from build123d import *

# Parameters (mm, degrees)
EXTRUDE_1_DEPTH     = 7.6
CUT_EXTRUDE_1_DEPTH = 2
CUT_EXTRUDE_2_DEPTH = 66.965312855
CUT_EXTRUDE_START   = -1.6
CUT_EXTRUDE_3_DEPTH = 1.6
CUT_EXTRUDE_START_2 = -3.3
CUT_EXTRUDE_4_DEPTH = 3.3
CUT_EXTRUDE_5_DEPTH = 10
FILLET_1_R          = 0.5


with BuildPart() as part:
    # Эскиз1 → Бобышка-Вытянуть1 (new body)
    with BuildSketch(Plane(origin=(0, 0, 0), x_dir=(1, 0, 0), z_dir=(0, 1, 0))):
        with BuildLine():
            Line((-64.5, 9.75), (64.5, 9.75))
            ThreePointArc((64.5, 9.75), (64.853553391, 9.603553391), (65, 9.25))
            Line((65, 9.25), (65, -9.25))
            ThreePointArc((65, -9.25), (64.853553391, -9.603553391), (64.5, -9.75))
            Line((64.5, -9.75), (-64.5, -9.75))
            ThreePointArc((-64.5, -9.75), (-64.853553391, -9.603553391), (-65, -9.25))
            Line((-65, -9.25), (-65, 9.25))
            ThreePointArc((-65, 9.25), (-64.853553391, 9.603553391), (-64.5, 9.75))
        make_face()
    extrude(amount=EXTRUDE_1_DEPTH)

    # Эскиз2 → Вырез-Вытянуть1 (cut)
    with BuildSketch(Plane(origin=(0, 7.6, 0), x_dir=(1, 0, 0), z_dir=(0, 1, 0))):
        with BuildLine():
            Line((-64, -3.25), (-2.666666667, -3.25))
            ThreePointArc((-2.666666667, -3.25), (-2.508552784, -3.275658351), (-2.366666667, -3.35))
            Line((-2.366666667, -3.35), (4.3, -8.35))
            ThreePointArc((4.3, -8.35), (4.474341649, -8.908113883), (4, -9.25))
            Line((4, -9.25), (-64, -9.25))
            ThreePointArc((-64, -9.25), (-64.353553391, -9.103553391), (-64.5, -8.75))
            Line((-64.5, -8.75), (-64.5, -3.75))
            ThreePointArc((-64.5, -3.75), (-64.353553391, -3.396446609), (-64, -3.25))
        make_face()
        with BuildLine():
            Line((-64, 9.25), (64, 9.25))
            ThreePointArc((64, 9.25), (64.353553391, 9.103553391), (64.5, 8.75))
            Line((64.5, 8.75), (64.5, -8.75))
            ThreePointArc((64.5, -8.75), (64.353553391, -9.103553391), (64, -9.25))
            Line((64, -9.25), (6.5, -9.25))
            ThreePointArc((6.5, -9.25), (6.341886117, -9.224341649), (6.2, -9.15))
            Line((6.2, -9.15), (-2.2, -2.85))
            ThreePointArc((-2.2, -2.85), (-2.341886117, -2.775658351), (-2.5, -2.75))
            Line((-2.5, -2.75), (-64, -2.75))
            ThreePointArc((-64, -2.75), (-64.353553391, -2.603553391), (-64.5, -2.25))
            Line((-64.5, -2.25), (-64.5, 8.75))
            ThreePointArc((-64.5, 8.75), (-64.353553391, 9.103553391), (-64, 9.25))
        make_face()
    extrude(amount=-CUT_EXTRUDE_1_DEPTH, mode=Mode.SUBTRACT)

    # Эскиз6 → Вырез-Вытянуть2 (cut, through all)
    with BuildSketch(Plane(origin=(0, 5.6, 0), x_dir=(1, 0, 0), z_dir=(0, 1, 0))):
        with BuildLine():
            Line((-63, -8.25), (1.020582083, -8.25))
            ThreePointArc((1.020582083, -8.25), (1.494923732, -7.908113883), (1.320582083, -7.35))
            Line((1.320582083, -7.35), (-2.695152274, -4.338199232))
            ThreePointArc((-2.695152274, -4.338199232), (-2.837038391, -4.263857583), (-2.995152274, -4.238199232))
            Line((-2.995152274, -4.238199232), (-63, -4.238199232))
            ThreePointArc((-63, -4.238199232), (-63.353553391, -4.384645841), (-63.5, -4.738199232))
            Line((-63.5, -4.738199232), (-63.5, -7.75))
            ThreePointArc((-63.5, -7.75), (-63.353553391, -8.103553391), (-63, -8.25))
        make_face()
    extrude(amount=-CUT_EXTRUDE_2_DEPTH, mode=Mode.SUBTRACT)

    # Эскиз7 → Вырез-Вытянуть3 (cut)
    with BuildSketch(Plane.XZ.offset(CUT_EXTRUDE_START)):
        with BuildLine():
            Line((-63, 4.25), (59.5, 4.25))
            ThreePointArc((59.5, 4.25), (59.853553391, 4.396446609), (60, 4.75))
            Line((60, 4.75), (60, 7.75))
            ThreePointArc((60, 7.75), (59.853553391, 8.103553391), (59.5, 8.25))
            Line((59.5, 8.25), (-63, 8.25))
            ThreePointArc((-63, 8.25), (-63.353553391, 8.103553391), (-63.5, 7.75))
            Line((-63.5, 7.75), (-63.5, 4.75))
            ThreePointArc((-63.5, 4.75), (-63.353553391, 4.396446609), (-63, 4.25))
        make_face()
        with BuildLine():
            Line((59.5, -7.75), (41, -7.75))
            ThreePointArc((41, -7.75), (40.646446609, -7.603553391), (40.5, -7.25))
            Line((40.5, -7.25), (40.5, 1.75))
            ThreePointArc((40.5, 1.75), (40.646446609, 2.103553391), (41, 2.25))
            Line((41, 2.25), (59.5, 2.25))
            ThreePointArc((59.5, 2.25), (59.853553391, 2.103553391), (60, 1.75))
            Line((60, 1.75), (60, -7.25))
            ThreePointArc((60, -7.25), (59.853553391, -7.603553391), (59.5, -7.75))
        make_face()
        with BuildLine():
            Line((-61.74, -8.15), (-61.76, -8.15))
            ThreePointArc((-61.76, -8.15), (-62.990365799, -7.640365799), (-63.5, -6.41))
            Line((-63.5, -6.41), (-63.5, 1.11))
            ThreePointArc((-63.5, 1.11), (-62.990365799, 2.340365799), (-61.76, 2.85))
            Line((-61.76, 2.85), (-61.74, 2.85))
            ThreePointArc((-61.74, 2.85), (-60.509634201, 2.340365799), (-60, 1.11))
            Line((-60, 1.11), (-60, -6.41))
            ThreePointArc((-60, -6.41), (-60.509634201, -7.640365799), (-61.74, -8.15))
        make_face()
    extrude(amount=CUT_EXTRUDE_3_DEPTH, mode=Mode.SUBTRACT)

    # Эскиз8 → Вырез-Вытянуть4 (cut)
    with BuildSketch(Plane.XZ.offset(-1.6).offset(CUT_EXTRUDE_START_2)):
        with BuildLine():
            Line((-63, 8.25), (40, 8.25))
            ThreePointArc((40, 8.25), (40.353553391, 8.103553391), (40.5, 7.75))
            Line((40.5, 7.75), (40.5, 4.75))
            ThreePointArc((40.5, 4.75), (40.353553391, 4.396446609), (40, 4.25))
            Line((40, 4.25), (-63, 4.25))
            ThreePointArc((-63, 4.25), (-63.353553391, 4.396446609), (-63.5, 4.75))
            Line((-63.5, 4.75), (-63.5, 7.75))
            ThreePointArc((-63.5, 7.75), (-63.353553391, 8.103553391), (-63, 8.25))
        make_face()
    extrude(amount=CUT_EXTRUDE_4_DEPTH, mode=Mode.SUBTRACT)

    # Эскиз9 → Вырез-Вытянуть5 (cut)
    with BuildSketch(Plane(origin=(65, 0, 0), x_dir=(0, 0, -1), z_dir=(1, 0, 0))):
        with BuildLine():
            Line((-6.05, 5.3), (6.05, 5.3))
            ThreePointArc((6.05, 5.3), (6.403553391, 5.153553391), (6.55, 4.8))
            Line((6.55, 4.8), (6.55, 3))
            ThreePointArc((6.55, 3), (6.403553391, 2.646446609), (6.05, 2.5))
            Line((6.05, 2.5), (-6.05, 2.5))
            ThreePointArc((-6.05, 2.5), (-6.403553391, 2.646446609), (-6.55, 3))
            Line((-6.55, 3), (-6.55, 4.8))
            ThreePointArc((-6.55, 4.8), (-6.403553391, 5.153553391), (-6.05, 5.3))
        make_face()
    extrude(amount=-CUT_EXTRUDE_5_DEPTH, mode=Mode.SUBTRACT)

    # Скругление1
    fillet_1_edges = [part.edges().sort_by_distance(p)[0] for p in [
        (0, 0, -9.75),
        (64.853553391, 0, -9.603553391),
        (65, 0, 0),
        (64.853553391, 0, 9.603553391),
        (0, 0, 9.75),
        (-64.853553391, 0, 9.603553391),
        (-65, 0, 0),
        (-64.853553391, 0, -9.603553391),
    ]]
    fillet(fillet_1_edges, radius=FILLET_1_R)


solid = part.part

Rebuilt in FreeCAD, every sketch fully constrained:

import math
import FreeCAD as App
import Part
import Sketcher


def edges_at(feature, points):
    """Names of the edges that pass closest to the given points."""
    edges = feature.Shape.Edges
    near = lambda p: min(range(len(edges)), key=lambda i: edges[i].distToShape(Part.Vertex(*p))[0])
    return sorted({f"Edge{near(p) + 1}" for p in points})

doc = App.newDocument("Part")
params = doc.addObject("Spreadsheet::Sheet", "Params")
for row, (alias, value) in enumerate([
    ("sketch1_radius", "0.5 mm"),
    ("sketch1_width", "129 mm"),
    ("sketch1_height", "18.5 mm"),
    ("pad1_length", "7.6 mm"),
    ("sketch2_radius", "0.5 mm"),
    ("sketch2_width", "68 mm"),
    ("sketch2_width2", "128 mm"),
    ("sketch2_height", "5 mm"),
    ("sketch2_height2", "11 mm"),
    ("pocket1_length", "2 mm"),
    ("sketch3_radius", "0.5 mm"),
    ("sketch3_width", "0.3 mm"),
    ("sketch4_radius", "0.5 mm"),
    ("sketch4_height", "3 mm"),
    ("sketch4_height2", "9 mm"),
    ("sketch4_radius2", "1.74 mm"),
    ("sketch4_width", "122.5 mm"),
    ("pocket3_length", "1.6 mm"),
    ("sketch5_radius", "0.5 mm"),
    ("sketch5_width", "103 mm"),
    ("sketch5_height", "3 mm"),
    ("pocket4_length", "3.3 mm"),
    ("sketch6_radius", "0.5 mm"),
    ("sketch6_width", "1.8 mm"),
    ("sketch6_height", "12.1 mm"),
    ("pocket5_length", "10 mm"),
    ("fillet_radius", "0.5 mm"),
], start=1):
    params.set(f"A{row}", alias)
    params.set(f"B{row}", "=" + value)
    params.setAlias(f"B{row}", alias)

body = doc.addObject("PartDesign::Body", "Body")

# Sketch on XZ plane
sketch1 = body.newObject("Sketcher::SketchObject", "Sketch")
sketch1.AttachmentSupport = (doc.getObject("XZ_Plane"), [""])
sketch1.MapMode = "FlatFace"
sketch1.addGeometry(Part.LineSegment(App.Vector(64.5, -9.75, 0), App.Vector(-64.5, -9.75, 0)), False)
sketch1.addGeometry(Part.ArcOfCircle(Part.Circle(App.Vector(-64.5, -9.25, 0), App.Vector(0, 0, 1), 0.5), math.radians(180), math.radians(270)), False)
sketch1.addGeometry(Part.LineSegment(App.Vector(-65, -9.25, 0), App.Vector(-65, 9.25, 0)), False)
sketch1.addGeometry(Part.ArcOfCircle(Part.Circle(App.Vector(-64.5, 9.25, 0), App.Vector(0, 0, 1), 0.5), math.radians(90), math.radians(180)), False)
sketch1.addGeometry(Part.LineSegment(App.Vector(-64.5, 9.75, 0), App.Vector(64.5, 9.75, 0)), False)
sketch1.addGeometry(Part.ArcOfCircle(Part.Circle(App.Vector(64.5, 9.25, 0), App.Vector(0, 0, 1), 0.5), math.radians(0), math.radians(90)), False)
sketch1.addGeometry(Part.LineSegment(App.Vector(65, 9.25, 0), App.Vector(65, -9.25, 0)), False)
sketch1.addGeometry(Part.ArcOfCircle(Part.Circle(App.Vector(64.5, -9.25, 0), App.Vector(0, 0, 1), 0.5), math.radians(-90), math.radians(0)), False)
sketch1.addConstraint(Sketcher.Constraint("Tangent", 0, 2, 1, 2))
sketch1.addConstraint(Sketcher.Constraint("Tangent", 1, 1, 2, 1))
sketch1.addConstraint(Sketcher.Constraint("Tangent", 2, 2, 3, 2))
sketch1.addConstraint(Sketcher.Constraint("Tangent", 3, 1, 4, 1))
sketch1.addConstraint(Sketcher.Constraint("Tangent", 4, 2, 5, 2))
sketch1.addConstraint(Sketcher.Constraint("Tangent", 5, 1, 6, 1))
sketch1.addConstraint(Sketcher.Constraint("Tangent", 6, 2, 7, 2))
sketch1.addConstraint(Sketcher.Constraint("Tangent", 7, 1, 0, 1))
sketch1.addConstraint(Sketcher.Constraint("Horizontal", 0))
sketch1.addConstraint(Sketcher.Constraint("Vertical", 2))
sketch1.addConstraint(Sketcher.Constraint("Horizontal", 4))
sketch1.addConstraint(Sketcher.Constraint("Vertical", 6))
sketch1.addConstraint(Sketcher.Constraint("Equal", 1, 3))
sketch1.addConstraint(Sketcher.Constraint("Equal", 3, 5))
sketch1.addConstraint(Sketcher.Constraint("Equal", 5, 7))
sketch1.addConstraint(Sketcher.Constraint("Symmetric", 1, 3, 5, 3, -1, 1))
sketch1.addConstraint(Sketcher.Constraint("Radius", 1, 0.5))
sketch1.addConstraint(Sketcher.Constraint("DistanceX", 0, 2, 0, 1, 129.0))
sketch1.addConstraint(Sketcher.Constraint("DistanceY", 2, 1, 2, 2, 18.5))
sketch1.setExpression("Constraints[16]", "Params.sketch1_radius")
sketch1.setExpression("Constraints[17]", "Params.sketch1_width")
sketch1.setExpression("Constraints[18]", "Params.sketch1_height")
pad1 = body.newObject("PartDesign::Pad", "Pad")
pad1.Profile = sketch1
pad1.setExpression("Length", "Params.pad1_length")
pad1.Reversed = True

# Sketch on XZ plane
sketch2 = body.newObject("Sketcher::SketchObject", "Sketch001")
sketch2.AttachmentSupport = (doc.getObject("XZ_Plane"), [""])
sketch2.MapMode = "FlatFace"
sketch2.AttachmentOffset = App.Placement(App.Vector(0, 0, -7.6), App.Rotation())
sketch2.addGeometry(Part.LineSegment(App.Vector(-2.67, 3.25, 0), App.Vector(-64, 3.25, 0)), False)
sketch2.addGeometry(Part.ArcOfCircle(Part.Circle(App.Vector(-64, 3.75, 0), App.Vector(0, 0, 1), 0.5), math.radians(180), math.radians(270)), False)
sketch2.addGeometry(Part.LineSegment(App.Vector(-64.5, 3.75, 0), App.Vector(-64.5, 8.75, 0)), False)
sketch2.addGeometry(Part.ArcOfCircle(Part.Circle(App.Vector(-64, 8.75, 0), App.Vector(0, 0, 1), 0.5), math.radians(90), math.radians(180)), False)
sketch2.addGeometry(Part.LineSegment(App.Vector(-64, 9.25, 0), App.Vector(4, 9.25, 0)), False)
sketch2.addGeometry(Part.ArcOfCircle(Part.Circle(App.Vector(4, 8.75, 0), App.Vector(0, 0, 1), 0.5), math.radians(-53), math.radians(90)), False)
sketch2.addGeometry(Part.LineSegment(App.Vector(4.3, 8.35, 0), App.Vector(-2.37, 3.35, 0)), False)
sketch2.addGeometry(Part.ArcOfCircle(Part.Circle(App.Vector(-2.67, 3.75, 0), App.Vector(0, 0, 1), 0.5), math.radians(-90), math.radians(-53)), False)
sketch2.addGeometry(Part.LineSegment(App.Vector(64, -9.25, 0), App.Vector(-64, -9.25, 0)), False)
sketch2.addGeometry(Part.ArcOfCircle(Part.Circle(App.Vector(-64, -8.75, 0), App.Vector(0, 0, 1), 0.5), math.radians(180), math.radians(270)), False)
sketch2.addGeometry(Part.LineSegment(App.Vector(-64.5, -8.75, 0), App.Vector(-64.5, 2.25, 0)), False)
sketch2.addGeometry(Part.ArcOfCircle(Part.Circle(App.Vector(-64, 2.25, 0), App.Vector(0, 0, 1), 0.5), math.radians(90), math.radians(180)), False)
sketch2.addGeometry(Part.LineSegment(App.Vector(-64, 2.75, 0), App.Vector(-2.5, 2.75, 0)), False)
sketch2.addGeometry(Part.ArcOfCircle(Part.Circle(App.Vector(-2.5, 3.25, 0), App.Vector(0, 0, 1), 0.5), math.radians(-90), math.radians(-53)), False)
sketch2.addGeometry(Part.LineSegment(App.Vector(-2.2, 2.85, 0), App.Vector(6.2, 9.15, 0)), False)
sketch2.addGeometry(Part.ArcOfCircle(Part.Circle(App.Vector(6.5, 8.75, 0), App.Vector(0, 0, 1), 0.5), math.radians(90), math.radians(127)), False)
sketch2.addGeometry(Part.LineSegment(App.Vector(6.5, 9.25, 0), App.Vector(64, 9.25, 0)), False)
sketch2.addGeometry(Part.ArcOfCircle(Part.Circle(App.Vector(64, 8.75, 0), App.Vector(0, 0, 1), 0.5), math.radians(0), math.radians(90)), False)
sketch2.addGeometry(Part.LineSegment(App.Vector(64.5, 8.75, 0), App.Vector(64.5, -8.75, 0)), False)
sketch2.addGeometry(Part.ArcOfCircle(Part.Circle(App.Vector(64, -8.75, 0), App.Vector(0, 0, 1), 0.5), math.radians(-90), math.radians(0)), False)
sketch2.addConstraint(Sketcher.Constraint("Tangent", 0, 2, 1, 2))
sketch2.addConstraint(Sketcher.Constraint("Tangent", 1, 1, 2, 1))
sketch2.addConstraint(Sketcher.Constraint("Tangent", 2, 2, 3, 2))
sketch2.addConstraint(Sketcher.Constraint("Tangent", 3, 1, 4, 1))
sketch2.addConstraint(Sketcher.Constraint("Tangent", 4, 2, 5, 2))
sketch2.addConstraint(Sketcher.Constraint("Tangent", 5, 1, 6, 1))
sketch2.addConstraint(Sketcher.Constraint("Tangent", 6, 2, 7, 2))
sketch2.addConstraint(Sketcher.Constraint("Tangent", 7, 1, 0, 1))
sketch2.addConstraint(Sketcher.Constraint("Tangent", 8, 2, 9, 2))
sketch2.addConstraint(Sketcher.Constraint("Tangent", 9, 1, 10, 1))
sketch2.addConstraint(Sketcher.Constraint("Tangent", 10, 2, 11, 2))
sketch2.addConstraint(Sketcher.Constraint("Tangent", 11, 1, 12, 1))
sketch2.addConstraint(Sketcher.Constraint("Tangent", 12, 2, 13, 1))
sketch2.addConstraint(Sketcher.Constraint("Tangent", 13, 2, 14, 1))
sketch2.addConstraint(Sketcher.Constraint("Tangent", 14, 2, 15, 2))
sketch2.addConstraint(Sketcher.Constraint("Tangent", 15, 1, 16, 1))
sketch2.addConstraint(Sketcher.Constraint("Tangent", 16, 2, 17, 2))
sketch2.addConstraint(Sketcher.Constraint("Tangent", 17, 1, 18, 1))
sketch2.addConstraint(Sketcher.Constraint("Tangent", 18, 2, 19, 2))
sketch2.addConstraint(Sketcher.Constraint("Tangent", 19, 1, 8, 1))
sketch2.addConstraint(Sketcher.Constraint("Horizontal", 0))
sketch2.addConstraint(Sketcher.Constraint("Vertical", 2))
sketch2.addConstraint(Sketcher.Constraint("Horizontal", 4))
sketch2.addConstraint(Sketcher.Constraint("Horizontal", 8))
sketch2.addConstraint(Sketcher.Constraint("Vertical", 10))
sketch2.addConstraint(Sketcher.Constraint("Horizontal", 12))
sketch2.addConstraint(Sketcher.Constraint("Horizontal", 16))
sketch2.addConstraint(Sketcher.Constraint("Vertical", 18))
sketch2.addConstraint(Sketcher.Constraint("Equal", 1, 3))
sketch2.addConstraint(Sketcher.Constraint("Equal", 3, 5))
sketch2.addConstraint(Sketcher.Constraint("Equal", 5, 7))
sketch2.addConstraint(Sketcher.Constraint("Equal", 7, 9))
sketch2.addConstraint(Sketcher.Constraint("Equal", 9, 11))
sketch2.addConstraint(Sketcher.Constraint("Equal", 11, 13))
sketch2.addConstraint(Sketcher.Constraint("Equal", 13, 15))
sketch2.addConstraint(Sketcher.Constraint("Equal", 15, 17))
sketch2.addConstraint(Sketcher.Constraint("Equal", 17, 19))
sketch2.addConstraint(Sketcher.Constraint("Symmetric", 9, 3, 17, 3, -1, 1))
sketch2.addConstraint(Sketcher.Constraint("Symmetric", 3, 3, 19, 3, -1, 1))
sketch2.addConstraint(Sketcher.Constraint("Parallel", 6, 14))
sketch2.addConstraint(Sketcher.Constraint("Horizontal", 13, 3, 0, 2))
sketch2.addConstraint(Sketcher.Constraint("Radius", 1, 0.5))
sketch2.addConstraint(Sketcher.Constraint("DistanceX", 4, 1, 4, 2, 68.0))
sketch2.addConstraint(Sketcher.Constraint("DistanceX", 8, 2, 8, 1, 128.0))
sketch2.addConstraint(Sketcher.Constraint("DistanceY", 2, 1, 2, 2, 5.0))
sketch2.addConstraint(Sketcher.Constraint("DistanceY", 10, 1, 10, 2, 11.0))
sketch2.addConstraint(Sketcher.Constraint("DistanceX", 12, 1, 12, 2, 61.5))
sketch2.addConstraint(Sketcher.Constraint("DistanceX", 16, 1, 16, 2, 57.5))
sketch2.setExpression("Constraints[41]", "Params.sketch2_radius")
sketch2.setExpression("Constraints[42]", "Params.sketch2_width")
sketch2.setExpression("Constraints[43]", "Params.sketch2_width2")
sketch2.setExpression("Constraints[44]", "Params.sketch2_height")
sketch2.setExpression("Constraints[45]", "Params.sketch2_height2")
pocket1 = body.newObject("PartDesign::Pocket", "Pocket")
pocket1.Profile = sketch2
pocket1.setExpression("Length", "Params.pocket1_length")
pocket1.Reversed = True

# Sketch on XZ plane
sketch3 = body.newObject("Sketcher::SketchObject", "Sketch002")
sketch3.AttachmentSupport = (doc.getObject("XZ_Plane"), [""])
sketch3.MapMode = "FlatFace"
sketch3.AttachmentOffset = App.Placement(App.Vector(0, 0, -5.6), App.Rotation())
sketch3.addGeometry(Part.LineSegment(App.Vector(-63, 8.25, 0), App.Vector(1.02, 8.25, 0)), False)
sketch3.addGeometry(Part.ArcOfCircle(Part.Circle(App.Vector(1.02, 7.75, 0), App.Vector(0, 0, 1), 0.5), math.radians(-53), math.radians(90)), False)
sketch3.addGeometry(Part.LineSegment(App.Vector(1.32, 7.35, 0), App.Vector(-2.7, 4.34, 0)), False)
sketch3.addGeometry(Part.ArcOfCircle(Part.Circle(App.Vector(-3, 4.74, 0), App.Vector(0, 0, 1), 0.5), math.radians(-90), math.radians(-53)), False)
sketch3.addGeometry(Part.LineSegment(App.Vector(-3, 4.24, 0), App.Vector(-63, 4.24, 0)), False)
sketch3.addGeometry(Part.ArcOfCircle(Part.Circle(App.Vector(-63, 4.74, 0), App.Vector(0, 0, 1), 0.5), math.radians(180), math.radians(270)), False)
sketch3.addGeometry(Part.LineSegment(App.Vector(-63.5, 4.74, 0), App.Vector(-63.5, 7.75, 0)), False)
sketch3.addGeometry(Part.ArcOfCircle(Part.Circle(App.Vector(-63, 7.75, 0), App.Vector(0, 0, 1), 0.5), math.radians(90), math.radians(180)), False)
sketch3.addConstraint(Sketcher.Constraint("Tangent", 0, 2, 1, 2))
sketch3.addConstraint(Sketcher.Constraint("Tangent", 1, 1, 2, 1))
sketch3.addConstraint(Sketcher.Constraint("Tangent", 2, 2, 3, 2))
sketch3.addConstraint(Sketcher.Constraint("Tangent", 3, 1, 4, 1))
sketch3.addConstraint(Sketcher.Constraint("Tangent", 4, 2, 5, 2))
sketch3.addConstraint(Sketcher.Constraint("Tangent", 5, 1, 6, 1))
sketch3.addConstraint(Sketcher.Constraint("Tangent", 6, 2, 7, 2))
sketch3.addConstraint(Sketcher.Constraint("Tangent", 7, 1, 0, 1))
sketch3.addConstraint(Sketcher.Constraint("Horizontal", 0))
sketch3.addConstraint(Sketcher.Constraint("Horizontal", 4))
sketch3.addConstraint(Sketcher.Constraint("Vertical", 6))
sketch3.addConstraint(Sketcher.Constraint("Equal", 1, 3))
sketch3.addConstraint(Sketcher.Constraint("Equal", 3, 5))
sketch3.addConstraint(Sketcher.Constraint("Equal", 5, 7))
sketch3.addConstraint(Sketcher.Constraint("Radius", 1, 0.5))
sketch3.addConstraint(Sketcher.Constraint("DistanceX", 5, 3, -1, 1, 63.0))
sketch3.addConstraint(Sketcher.Constraint("DistanceX", 1, 3, 1, 1, 0.3))
sketch3.addConstraint(Sketcher.Constraint("DistanceY", -1, 1, 1, 3, 7.75))
sketch3.addConstraint(Sketcher.Constraint("DistanceY", 6, 1, 6, 2, 3.011801))
sketch3.addConstraint(Sketcher.Constraint("DistanceX", 0, 1, 0, 2, 64.020582))
sketch3.setExpression("Constraints[14]", "Params.sketch3_radius")
sketch3.setExpression("Constraints[16]", "Params.sketch3_width")
pocket2 = body.newObject("PartDesign::Pocket", "Pocket001")
pocket2.Profile = sketch3
pocket2.Type = "ThroughAll"
pocket2.Reversed = True

# Sketch on XZ plane
sketch4 = body.newObject("Sketcher::SketchObject", "Sketch003")
sketch4.AttachmentSupport = (doc.getObject("XZ_Plane"), [""])
sketch4.MapMode = "FlatFace"
sketch4.AttachmentOffset = App.Placement(App.Vector(0, 0, -1.6), App.Rotation())
sketch4.addGeometry(Part.LineSegment(App.Vector(-63, 4.25, 0), App.Vector(59.5, 4.25, 0)), False)
sketch4.addGeometry(Part.ArcOfCircle(Part.Circle(App.Vector(59.5, 4.75, 0), App.Vector(0, 0, 1), 0.5), math.radians(-90), math.radians(0)), False)
sketch4.addGeometry(Part.LineSegment(App.Vector(60, 4.75, 0), App.Vector(60, 7.75, 0)), False)
sketch4.addGeometry(Part.ArcOfCircle(Part.Circle(App.Vector(59.5, 7.75, 0), App.Vector(0, 0, 1), 0.5), math.radians(0), math.radians(90)), False)
sketch4.addGeometry(Part.LineSegment(App.Vector(59.5, 8.25, 0), App.Vector(-63, 8.25, 0)), False)
sketch4.addGeometry(Part.ArcOfCircle(Part.Circle(App.Vector(-63, 7.75, 0), App.Vector(0, 0, 1), 0.5), math.radians(90), math.radians(180)), False)
sketch4.addGeometry(Part.LineSegment(App.Vector(-63.5, 7.75, 0), App.Vector(-63.5, 4.75, 0)), False)
sketch4.addGeometry(Part.ArcOfCircle(Part.Circle(App.Vector(-63, 4.75, 0), App.Vector(0, 0, 1), 0.5), math.radians(180), math.radians(270)), False)
sketch4.addGeometry(Part.LineSegment(App.Vector(41, -7.75, 0), App.Vector(59.5, -7.75, 0)), False)
sketch4.addGeometry(Part.ArcOfCircle(Part.Circle(App.Vector(59.5, -7.25, 0), App.Vector(0, 0, 1), 0.5), math.radians(-90), math.radians(0)), False)
sketch4.addGeometry(Part.LineSegment(App.Vector(60, -7.25, 0), App.Vector(60, 1.75, 0)), False)
sketch4.addGeometry(Part.ArcOfCircle(Part.Circle(App.Vector(59.5, 1.75, 0), App.Vector(0, 0, 1), 0.5), math.radians(0), math.radians(90)), False)
sketch4.addGeometry(Part.LineSegment(App.Vector(59.5, 2.25, 0), App.Vector(41, 2.25, 0)), False)
sketch4.addGeometry(Part.ArcOfCircle(Part.Circle(App.Vector(41, 1.75, 0), App.Vector(0, 0, 1), 0.5), math.radians(90), math.radians(180)), False)
sketch4.addGeometry(Part.LineSegment(App.Vector(40.5, 1.75, 0), App.Vector(40.5, -7.25, 0)), False)
sketch4.addGeometry(Part.ArcOfCircle(Part.Circle(App.Vector(41, -7.25, 0), App.Vector(0, 0, 1), 0.5), math.radians(180), math.radians(270)), False)
sketch4.addGeometry(Part.LineSegment(App.Vector(-61.76, -8.15, 0), App.Vector(-61.74, -8.15, 0)), False)
sketch4.addGeometry(Part.ArcOfCircle(Part.Circle(App.Vector(-61.74, -6.41, 0), App.Vector(0, 0, 1), 1.74), math.radians(-90), math.radians(0)), False)
sketch4.addGeometry(Part.LineSegment(App.Vector(-60, -6.41, 0), App.Vector(-60, 1.11, 0)), False)
sketch4.addGeometry(Part.ArcOfCircle(Part.Circle(App.Vector(-61.74, 1.11, 0), App.Vector(0, 0, 1), 1.74), math.radians(0), math.radians(90)), False)
sketch4.addGeometry(Part.LineSegment(App.Vector(-61.74, 2.85, 0), App.Vector(-61.76, 2.85, 0)), False)
sketch4.addGeometry(Part.ArcOfCircle(Part.Circle(App.Vector(-61.76, 1.11, 0), App.Vector(0, 0, 1), 1.74), math.radians(90), math.radians(180)), False)
sketch4.addGeometry(Part.LineSegment(App.Vector(-63.5, 1.11, 0), App.Vector(-63.5, -6.41, 0)), False)
sketch4.addGeometry(Part.ArcOfCircle(Part.Circle(App.Vector(-61.76, -6.41, 0), App.Vector(0, 0, 1), 1.74), math.radians(-180), math.radians(-90)), False)
sketch4.addConstraint(Sketcher.Constraint("Tangent", 0, 2, 1, 1))
sketch4.addConstraint(Sketcher.Constraint("Tangent", 1, 2, 2, 1))
sketch4.addConstraint(Sketcher.Constraint("Tangent", 2, 2, 3, 1))
sketch4.addConstraint(Sketcher.Constraint("Tangent", 3, 2, 4, 1))
sketch4.addConstraint(Sketcher.Constraint("Tangent", 4, 2, 5, 1))
sketch4.addConstraint(Sketcher.Constraint("Tangent", 5, 2, 6, 1))
sketch4.addConstraint(Sketcher.Constraint("Tangent", 6, 2, 7, 1))
sketch4.addConstraint(Sketcher.Constraint("Tangent", 7, 2, 0, 1))
sketch4.addConstraint(Sketcher.Constraint("Tangent", 8, 2, 9, 1))
sketch4.addConstraint(Sketcher.Constraint("Tangent", 9, 2, 10, 1))
sketch4.addConstraint(Sketcher.Constraint("Tangent", 10, 2, 11, 1))
sketch4.addConstraint(Sketcher.Constraint("Tangent", 11, 2, 12, 1))
sketch4.addConstraint(Sketcher.Constraint("Tangent", 12, 2, 13, 1))
sketch4.addConstraint(Sketcher.Constraint("Tangent", 13, 2, 14, 1))
sketch4.addConstraint(Sketcher.Constraint("Tangent", 14, 2, 15, 1))
sketch4.addConstraint(Sketcher.Constraint("Tangent", 15, 2, 8, 1))
sketch4.addConstraint(Sketcher.Constraint("Tangent", 16, 2, 17, 1))
sketch4.addConstraint(Sketcher.Constraint("Tangent", 17, 2, 18, 1))
sketch4.addConstraint(Sketcher.Constraint("Tangent", 18, 2, 19, 1))
sketch4.addConstraint(Sketcher.Constraint("Tangent", 19, 2, 20, 1))
sketch4.addConstraint(Sketcher.Constraint("Tangent", 20, 2, 21, 1))
sketch4.addConstraint(Sketcher.Constraint("Tangent", 21, 2, 22, 1))
sketch4.addConstraint(Sketcher.Constraint("Tangent", 22, 2, 23, 1))
sketch4.addConstraint(Sketcher.Constraint("Tangent", 23, 2, 16, 1))
sketch4.addConstraint(Sketcher.Constraint("Horizontal", 0))
sketch4.addConstraint(Sketcher.Constraint("Vertical", 2))
sketch4.addConstraint(Sketcher.Constraint("Horizontal", 4))
sketch4.addConstraint(Sketcher.Constraint("Vertical", 6))
sketch4.addConstraint(Sketcher.Constraint("Horizontal", 8))
sketch4.addConstraint(Sketcher.Constraint("Vertical", 10))
sketch4.addConstraint(Sketcher.Constraint("Horizontal", 12))
sketch4.addConstraint(Sketcher.Constraint("Vertical", 14))
sketch4.addConstraint(Sketcher.Constraint("Horizontal", 16))
sketch4.addConstraint(Sketcher.Constraint("Vertical", 18))
sketch4.addConstraint(Sketcher.Constraint("Horizontal", 20))
sketch4.addConstraint(Sketcher.Constraint("Vertical", 22))
sketch4.addConstraint(Sketcher.Constraint("Equal", 1, 3))
sketch4.addConstraint(Sketcher.Constraint("Equal", 3, 5))
sketch4.addConstraint(Sketcher.Constraint("Equal", 5, 7))
sketch4.addConstraint(Sketcher.Constraint("Equal", 7, 9))
sketch4.addConstraint(Sketcher.Constraint("Equal", 9, 11))
sketch4.addConstraint(Sketcher.Constraint("Equal", 11, 13))
sketch4.addConstraint(Sketcher.Constraint("Equal", 13, 15))
sketch4.addConstraint(Sketcher.Constraint("Equal", 17, 19))
sketch4.addConstraint(Sketcher.Constraint("Equal", 19, 21))
sketch4.addConstraint(Sketcher.Constraint("Equal", 21, 23))
sketch4.addConstraint(Sketcher.Constraint("Vertical", 3, 3, 9, 3))
sketch4.addConstraint(Sketcher.Constraint("Vertical", 6, 2, 21, 2))
sketch4.addConstraint(Sketcher.Constraint("Radius", 1, 0.5))
sketch4.addConstraint(Sketcher.Constraint("DistanceY", 2, 1, 2, 2, 3.0))
sketch4.addConstraint(Sketcher.Constraint("DistanceY", 10, 1, 10, 2, 9.0))
sketch4.addConstraint(Sketcher.Constraint("Radius", 17, 1.74))
sketch4.addConstraint(Sketcher.Constraint("DistanceX", 0, 1, 0, 2, 122.5))
sketch4.addConstraint(Sketcher.Constraint("DistanceX", 8, 1, 8, 2, 18.5))
sketch4.addConstraint(Sketcher.Constraint("DistanceX", 5, 3, -1, 1, 63.0))
sketch4.addConstraint(Sketcher.Constraint("DistanceX", 17, 2, -1, 1, 60.0))
sketch4.addConstraint(Sketcher.Constraint("DistanceY", 9, 3, 1, 3, 12.0))
sketch4.addConstraint(Sketcher.Constraint("DistanceY", 18, 1, 18, 2, 7.52))
sketch4.addConstraint(Sketcher.Constraint("DistanceY", 16, 2, 7, 2, 12.4))
sketch4.addConstraint(Sketcher.Constraint("DistanceY", -1, 1, 1, 3, 4.75))
sketch4.setExpression("Constraints[48]", "Params.sketch4_radius")
sketch4.setExpression("Constraints[49]", "Params.sketch4_height")
sketch4.setExpression("Constraints[50]", "Params.sketch4_height2")
sketch4.setExpression("Constraints[51]", "Params.sketch4_radius2")
sketch4.setExpression("Constraints[52]", "Params.sketch4_width")
pocket3 = body.newObject("PartDesign::Pocket", "Pocket002")
pocket3.Profile = sketch4
pocket3.setExpression("Length", "Params.pocket3_length")
pocket3.Reversed = True

# Sketch on XZ plane
sketch5 = body.newObject("Sketcher::SketchObject", "Sketch004")
sketch5.AttachmentSupport = (doc.getObject("XZ_Plane"), [""])
sketch5.MapMode = "FlatFace"
sketch5.AttachmentOffset = App.Placement(App.Vector(0, 0, -4.9), App.Rotation())
sketch5.addGeometry(Part.LineSegment(App.Vector(40, 8.25, 0), App.Vector(-63, 8.25, 0)), False)
sketch5.addGeometry(Part.ArcOfCircle(Part.Circle(App.Vector(-63, 7.75, 0), App.Vector(0, 0, 1), 0.5), math.radians(90), math.radians(180)), False)
sketch5.addGeometry(Part.LineSegment(App.Vector(-63.5, 7.75, 0), App.Vector(-63.5, 4.75, 0)), False)
sketch5.addGeometry(Part.ArcOfCircle(Part.Circle(App.Vector(-63, 4.75, 0), App.Vector(0, 0, 1), 0.5), math.radians(180), math.radians(270)), False)
sketch5.addGeometry(Part.LineSegment(App.Vector(-63, 4.25, 0), App.Vector(40, 4.25, 0)), False)
sketch5.addGeometry(Part.ArcOfCircle(Part.Circle(App.Vector(40, 4.75, 0), App.Vector(0, 0, 1), 0.5), math.radians(-90), math.radians(0)), False)
sketch5.addGeometry(Part.LineSegment(App.Vector(40.5, 4.75, 0), App.Vector(40.5, 7.75, 0)), False)
sketch5.addGeometry(Part.ArcOfCircle(Part.Circle(App.Vector(40, 7.75, 0), App.Vector(0, 0, 1), 0.5), math.radians(0), math.radians(90)), False)
sketch5.addConstraint(Sketcher.Constraint("Tangent", 0, 2, 1, 1))
sketch5.addConstraint(Sketcher.Constraint("Tangent", 1, 2, 2, 1))
sketch5.addConstraint(Sketcher.Constraint("Tangent", 2, 2, 3, 1))
sketch5.addConstraint(Sketcher.Constraint("Tangent", 3, 2, 4, 1))
sketch5.addConstraint(Sketcher.Constraint("Tangent", 4, 2, 5, 1))
sketch5.addConstraint(Sketcher.Constraint("Tangent", 5, 2, 6, 1))
sketch5.addConstraint(Sketcher.Constraint("Tangent", 6, 2, 7, 1))
sketch5.addConstraint(Sketcher.Constraint("Tangent", 7, 2, 0, 1))
sketch5.addConstraint(Sketcher.Constraint("Horizontal", 0))
sketch5.addConstraint(Sketcher.Constraint("Vertical", 2))
sketch5.addConstraint(Sketcher.Constraint("Horizontal", 4))
sketch5.addConstraint(Sketcher.Constraint("Vertical", 6))
sketch5.addConstraint(Sketcher.Constraint("Equal", 1, 3))
sketch5.addConstraint(Sketcher.Constraint("Equal", 3, 5))
sketch5.addConstraint(Sketcher.Constraint("Equal", 5, 7))
sketch5.addConstraint(Sketcher.Constraint("Radius", 1, 0.5))
sketch5.addConstraint(Sketcher.Constraint("DistanceX", 0, 2, 0, 1, 103.0))
sketch5.addConstraint(Sketcher.Constraint("DistanceY", 2, 2, 2, 1, 3.0))
sketch5.addConstraint(Sketcher.Constraint("DistanceX", 1, 3, -1, 1, 63.0))
sketch5.addConstraint(Sketcher.Constraint("DistanceY", -1, 1, 1, 3, 7.75))
sketch5.setExpression("Constraints[15]", "Params.sketch5_radius")
sketch5.setExpression("Constraints[16]", "Params.sketch5_width")
sketch5.setExpression("Constraints[17]", "Params.sketch5_height")
pocket4 = body.newObject("PartDesign::Pocket", "Pocket003")
pocket4.Profile = sketch5
pocket4.setExpression("Length", "Params.pocket4_length")
pocket4.Reversed = True

# Sketch on YZ plane
sketch6 = body.newObject("Sketcher::SketchObject", "Sketch005")
sketch6.AttachmentSupport = (doc.getObject("YZ_Plane"), [""])
sketch6.MapMode = "FlatFace"
sketch6.AttachmentOffset = App.Placement(App.Vector(0, 0, 65), App.Rotation())
sketch6.addGeometry(Part.LineSegment(App.Vector(5.3, -6.05, 0), App.Vector(5.3, 6.05, 0)), False)
sketch6.addGeometry(Part.ArcOfCircle(Part.Circle(App.Vector(4.8, 6.05, 0), App.Vector(0, 0, 1), 0.5), math.radians(0), math.radians(90)), False)
sketch6.addGeometry(Part.LineSegment(App.Vector(4.8, 6.55, 0), App.Vector(3, 6.55, 0)), False)
sketch6.addGeometry(Part.ArcOfCircle(Part.Circle(App.Vector(3, 6.05, 0), App.Vector(0, 0, 1), 0.5), math.radians(90), math.radians(180)), False)
sketch6.addGeometry(Part.LineSegment(App.Vector(2.5, 6.05, 0), App.Vector(2.5, -6.05, 0)), False)
sketch6.addGeometry(Part.ArcOfCircle(Part.Circle(App.Vector(3, -6.05, 0), App.Vector(0, 0, 1), 0.5), math.radians(180), math.radians(270)), False)
sketch6.addGeometry(Part.LineSegment(App.Vector(3, -6.55, 0), App.Vector(4.8, -6.55, 0)), False)
sketch6.addGeometry(Part.ArcOfCircle(Part.Circle(App.Vector(4.8, -6.05, 0), App.Vector(0, 0, 1), 0.5), math.radians(-90), math.radians(0)), False)
sketch6.addConstraint(Sketcher.Constraint("Tangent", 0, 2, 1, 1))
sketch6.addConstraint(Sketcher.Constraint("Tangent", 1, 2, 2, 1))
sketch6.addConstraint(Sketcher.Constraint("Tangent", 2, 2, 3, 1))
sketch6.addConstraint(Sketcher.Constraint("Tangent", 3, 2, 4, 1))
sketch6.addConstraint(Sketcher.Constraint("Tangent", 4, 2, 5, 1))
sketch6.addConstraint(Sketcher.Constraint("Tangent", 5, 2, 6, 1))
sketch6.addConstraint(Sketcher.Constraint("Tangent", 6, 2, 7, 1))
sketch6.addConstraint(Sketcher.Constraint("Tangent", 7, 2, 0, 1))
sketch6.addConstraint(Sketcher.Constraint("Vertical", 0))
sketch6.addConstraint(Sketcher.Constraint("Horizontal", 2))
sketch6.addConstraint(Sketcher.Constraint("Vertical", 4))
sketch6.addConstraint(Sketcher.Constraint("Horizontal", 6))
sketch6.addConstraint(Sketcher.Constraint("Equal", 1, 3))
sketch6.addConstraint(Sketcher.Constraint("Equal", 3, 5))
sketch6.addConstraint(Sketcher.Constraint("Equal", 5, 7))
sketch6.addConstraint(Sketcher.Constraint("Radius", 1, 0.5))
sketch6.addConstraint(Sketcher.Constraint("DistanceX", 2, 2, 2, 1, 1.8))
sketch6.addConstraint(Sketcher.Constraint("DistanceY", 0, 1, 0, 2, 12.1))
sketch6.addConstraint(Sketcher.Constraint("DistanceX", -1, 1, 3, 3, 3.0))
sketch6.addConstraint(Sketcher.Constraint("DistanceY", -1, 1, 1, 3, 6.05))
sketch6.setExpression("Constraints[15]", "Params.sketch6_radius")
sketch6.setExpression("Constraints[16]", "Params.sketch6_width")
sketch6.setExpression("Constraints[17]", "Params.sketch6_height")
pocket5 = body.newObject("PartDesign::Pocket", "Pocket004")
pocket5.Profile = sketch6
pocket5.setExpression("Length", "Params.pocket5_length")
doc.recompute()

fillet = body.newObject("PartDesign::Fillet", "Fillet")
fillet.Base = (pocket5, edges_at(pocket5, [
    (0, 0, -9.75),
    (64.854, 0, -9.604),
    (65, 0, 0),
    (64.854, 0, 9.604),
    (0, 0, 9.75),
    (-64.854, 0, 9.604),
    (-65, 0, 0),
    (-64.854, 0, -9.604),
]))
fillet.setExpression("Radius", "Params.fillet_radius")

doc.recompute()
